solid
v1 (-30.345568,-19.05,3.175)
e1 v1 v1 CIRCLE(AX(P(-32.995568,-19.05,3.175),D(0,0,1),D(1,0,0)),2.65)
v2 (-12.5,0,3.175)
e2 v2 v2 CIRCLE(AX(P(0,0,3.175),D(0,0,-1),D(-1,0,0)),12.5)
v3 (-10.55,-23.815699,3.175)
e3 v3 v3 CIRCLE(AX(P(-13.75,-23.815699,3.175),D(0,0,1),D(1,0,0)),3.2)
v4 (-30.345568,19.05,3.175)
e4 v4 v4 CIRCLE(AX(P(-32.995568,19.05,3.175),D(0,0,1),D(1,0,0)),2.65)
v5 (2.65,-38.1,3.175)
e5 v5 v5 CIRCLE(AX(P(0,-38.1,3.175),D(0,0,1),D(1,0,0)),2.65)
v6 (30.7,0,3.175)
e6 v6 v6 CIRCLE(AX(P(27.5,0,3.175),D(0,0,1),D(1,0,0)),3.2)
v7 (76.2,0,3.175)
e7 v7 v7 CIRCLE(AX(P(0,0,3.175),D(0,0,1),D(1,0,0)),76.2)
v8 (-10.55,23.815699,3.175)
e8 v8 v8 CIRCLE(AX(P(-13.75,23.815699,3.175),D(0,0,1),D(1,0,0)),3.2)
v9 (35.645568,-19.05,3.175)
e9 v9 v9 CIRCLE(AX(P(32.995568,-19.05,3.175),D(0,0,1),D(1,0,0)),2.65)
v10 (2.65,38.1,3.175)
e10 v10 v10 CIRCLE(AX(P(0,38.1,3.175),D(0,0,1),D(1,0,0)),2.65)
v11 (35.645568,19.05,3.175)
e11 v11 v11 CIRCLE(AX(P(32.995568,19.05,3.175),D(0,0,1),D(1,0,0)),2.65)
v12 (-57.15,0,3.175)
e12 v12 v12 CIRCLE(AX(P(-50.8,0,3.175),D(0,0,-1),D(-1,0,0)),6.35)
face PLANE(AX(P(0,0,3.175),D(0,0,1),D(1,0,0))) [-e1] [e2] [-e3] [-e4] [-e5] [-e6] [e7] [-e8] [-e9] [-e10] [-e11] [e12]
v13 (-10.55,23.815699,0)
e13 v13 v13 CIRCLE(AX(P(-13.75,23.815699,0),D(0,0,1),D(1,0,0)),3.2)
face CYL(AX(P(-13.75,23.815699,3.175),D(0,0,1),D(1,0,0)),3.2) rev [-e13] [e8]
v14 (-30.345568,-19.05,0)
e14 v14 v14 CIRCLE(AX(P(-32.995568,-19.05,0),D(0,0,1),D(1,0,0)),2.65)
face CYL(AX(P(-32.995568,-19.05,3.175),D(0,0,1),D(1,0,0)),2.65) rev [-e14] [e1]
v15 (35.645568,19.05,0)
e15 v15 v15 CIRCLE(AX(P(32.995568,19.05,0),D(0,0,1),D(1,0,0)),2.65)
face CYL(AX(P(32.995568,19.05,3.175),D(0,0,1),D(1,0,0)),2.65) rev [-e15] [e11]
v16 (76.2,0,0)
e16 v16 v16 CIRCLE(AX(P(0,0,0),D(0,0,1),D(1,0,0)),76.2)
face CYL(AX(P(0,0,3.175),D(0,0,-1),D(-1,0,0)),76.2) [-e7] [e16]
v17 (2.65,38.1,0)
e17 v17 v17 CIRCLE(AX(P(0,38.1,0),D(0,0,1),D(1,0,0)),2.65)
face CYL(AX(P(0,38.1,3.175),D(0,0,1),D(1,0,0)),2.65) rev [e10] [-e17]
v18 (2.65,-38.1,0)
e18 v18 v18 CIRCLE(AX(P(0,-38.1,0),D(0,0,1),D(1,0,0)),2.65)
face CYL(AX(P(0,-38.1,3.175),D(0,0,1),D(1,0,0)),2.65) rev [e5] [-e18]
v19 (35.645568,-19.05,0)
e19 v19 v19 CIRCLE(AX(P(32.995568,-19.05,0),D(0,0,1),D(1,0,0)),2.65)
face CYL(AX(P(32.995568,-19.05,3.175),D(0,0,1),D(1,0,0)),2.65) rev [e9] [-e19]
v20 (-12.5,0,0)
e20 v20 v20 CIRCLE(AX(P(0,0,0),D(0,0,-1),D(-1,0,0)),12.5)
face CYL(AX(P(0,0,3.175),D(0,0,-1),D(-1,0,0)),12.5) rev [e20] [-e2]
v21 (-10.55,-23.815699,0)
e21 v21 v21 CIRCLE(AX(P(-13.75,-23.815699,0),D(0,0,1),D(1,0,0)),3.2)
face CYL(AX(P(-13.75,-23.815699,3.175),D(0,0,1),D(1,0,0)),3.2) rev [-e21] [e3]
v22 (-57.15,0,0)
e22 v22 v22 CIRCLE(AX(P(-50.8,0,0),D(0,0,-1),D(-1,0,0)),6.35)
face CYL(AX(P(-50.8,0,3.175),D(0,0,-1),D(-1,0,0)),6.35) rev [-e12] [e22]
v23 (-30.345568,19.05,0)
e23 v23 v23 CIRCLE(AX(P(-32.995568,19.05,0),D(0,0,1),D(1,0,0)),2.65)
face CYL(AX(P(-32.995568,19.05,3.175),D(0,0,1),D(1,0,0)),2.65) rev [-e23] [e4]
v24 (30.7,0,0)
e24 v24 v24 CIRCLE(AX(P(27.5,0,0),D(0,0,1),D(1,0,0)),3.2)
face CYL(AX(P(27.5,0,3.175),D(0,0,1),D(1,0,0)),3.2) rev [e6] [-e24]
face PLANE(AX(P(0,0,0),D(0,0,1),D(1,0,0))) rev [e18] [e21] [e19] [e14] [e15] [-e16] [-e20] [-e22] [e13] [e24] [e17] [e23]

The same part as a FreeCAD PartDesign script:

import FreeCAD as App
import Part
import Sketcher
from FreeCAD import Vector
Q = App.Units.Quantity


def add_polygon(sketch, points):
    """Adds a closed chain of lines whose ends are joined by coincident constraints."""
    first, n = sketch.GeometryCount, len(points)
    for a, b in zip(points, points[1:] + points[:1]):
        sketch.addGeometry(Part.LineSegment(App.Vector(*a, 0), App.Vector(*b, 0)), False)
    for i in range(n):
        sketch.addConstraint(Sketcher.Constraint("Coincident", first + i, 2, first + (i + 1) % n, 1))

doc = App.newDocument("Part")
body = doc.addObject("PartDesign::Body", "Body")

# Sketch on XY plane
sketch1 = body.newObject("Sketcher::SketchObject", "Sketch")
sketch1.AttachmentSupport = (doc.getObject("XY_Plane"), [""])
sketch1.MapMode = "FlatFace"
sketch1.addGeometry(Part.Circle(Vector(0, 0, 0), Vector(0, 0, 1), 76), False)
sketch1.addConstraint([
    Sketcher.Constraint("Coincident", 0, 3, -1, 1),
    Sketcher.Constraint("Diameter", 0, Q("6 in")),
])
pad1 = body.newObject("PartDesign::Pad", "Pad")
pad1.Profile = sketch1
pad1.Length = Q("0.125 in")

# Sketch on YZ plane
sketch2 = body.newObject("Sketcher::SketchObject", "Sketch001")
sketch2.AttachmentSupport = (doc.getObject("YZ_Plane"), [""])
sketch2.MapMode = "FlatFace"
add_polygon(sketch2, [(38.1, -10.9), (38.1, 3.2), (35.5, 3.2), (35.5, -9.3)])  # lines 0-3
sketch2.addGeometry(Part.LineSegment(Vector(38.1, 3.2, 0), Vector(38.1, -10.9, 0)), True)  # axis
sketch2.addConstraint([
    Sketcher.Constraint("Vertical", 0),
    Sketcher.Constraint("Horizontal", 1),
    Sketcher.Constraint("Vertical", 2),
    Sketcher.Constraint("Vertical", 4),
    Sketcher.Constraint("Coincident", 4, 1, 0, 2),
    Sketcher.Constraint("Equal", 0, 4),
    Sketcher.Constraint("Angle", 3, Q("-31 deg")),
    Sketcher.Constraint("DistanceY", 2, 2, 2, 1, Q("0.49 in")),
    Sketcher.Constraint("DistanceX", -1, 1, 0, 2, Q("1.5 in")),
    Sketcher.Constraint("DistanceY", -1, 1, 0, 2, Q("0.125 in")),
    Sketcher.Constraint("DistanceX", 1, 2, 1, 1, Q("2.65 mm")),
])
groove = body.newObject("PartDesign::Groove", "Groove")
groove.Profile = sketch2
groove.ReferenceAxis = (sketch2, ["Axis0"])
groove.Angle = 360

# Sketch on YZ plane
sketch3 = body.newObject("Sketcher::SketchObject", "Sketch002")
sketch3.AttachmentSupport = (doc.getObject("YZ_Plane"), [""])
sketch3.MapMode = "FlatFace"
sketch3.AttachmentOffset = App.Placement(Vector(0, 0, -13.75), App.Rotation())
add_polygon(sketch3, [(23.8, -11.2), (23.8, 3.2), (20.6, 3.2), (20.6, -9.3)])  # lines 0-3
sketch3.addGeometry(Part.LineSegment(Vector(23.8, 3.2, 0), Vector(23.8, -11.2, 0)), True)  # axis
sketch3.addConstraint([
    Sketcher.Constraint("Vertical", 0),
    Sketcher.Constraint("Horizontal", 1),
    Sketcher.Constraint("Vertical", 2),
    Sketcher.Constraint("Vertical", 4),
    Sketcher.Constraint("Coincident", 4, 1, 0, 2),
    Sketcher.Constraint("Equal", 0, 4),
    Sketcher.Constraint("Angle", 3, Q("-31 deg")),
    Sketcher.Constraint("DistanceY", 2, 2, 2, 1, Q("0.49 in")),
    Sketcher.Constraint("DistanceY", -1, 1, 0, 2, Q("0.125 in")),
    Sketcher.Constraint("DistanceX", 1, 2, 1, 1, Q("3.2 mm")),
    Sketcher.Constraint("DistanceX", -1, 1, 0, 2, Q("23.815699 mm")),
])
groove2 = body.newObject("PartDesign::Groove", "Groove001")
groove2.Profile = sketch3
groove2.ReferenceAxis = (sketch3, ["Axis0"])
groove2.Angle = 360
doc.recompute()

polarpattern = body.newObject("PartDesign::PolarPattern", "PolarPattern")
polarpattern.Originals = [groove2]
polarpattern.Axis = (doc.getObject("Z_Axis"), [""])
polarpattern.Angle = 360
polarpattern.Occurrences = 3
body.Tip = polarpattern
doc.recompute()

polarpattern2 = body.newObject("PartDesign::PolarPattern", "PolarPattern001")
polarpattern2.Originals = [groove]
polarpattern2.Axis = (doc.getObject("Z_Axis"), [""])
polarpattern2.Angle = 360
polarpattern2.Occurrences = 6
body.Tip = polarpattern2

# Sketch on XY plane
sketch4 = body.newObject("Sketcher::SketchObject", "Sketch003")
sketch4.AttachmentSupport = (doc.getObject("XY_Plane"), [""])
sketch4.MapMode = "FlatFace"
sketch4.addGeometry(Part.Circle(Vector(0, 0, 0), Vector(0, 0, 1), 12), False)
sketch4.addConstraint([
    Sketcher.Constraint("Coincident", 0, 3, -1, 1),
    Sketcher.Constraint("Diameter", 0, Q("25 mm")),
])
pocket1 = body.newObject("PartDesign::Pocket", "Pocket")
pocket1.Profile = sketch4
pocket1.Type = "ThroughAll"
pocket1.Reversed = True

# Sketch on XY plane
sketch5 = body.newObject("Sketcher::SketchObject", "Sketch004")
sketch5.AttachmentSupport = (doc.getObject("XY_Plane"), [""])
sketch5.MapMode = "FlatFace"
sketch5.addGeometry(Part.Circle(Vector(-51, 0, 0), Vector(0, 0, 1), 6), False)
sketch5.addConstraint([
    Sketcher.Constraint("PointOnObject", 0, 3, -1),
    Sketcher.Constraint("Diameter", 0, Q("0.5 in")),
    Sketcher.Constraint("DistanceX", 0, 3, -1, 1, Q("2 in")),
])
pocket2 = body.newObject("PartDesign::Pocket", "Pocket001")
pocket2.Profile = sketch5
pocket2.Type = "ThroughAll"
pocket2.Reversed = True

doc.recompute()
